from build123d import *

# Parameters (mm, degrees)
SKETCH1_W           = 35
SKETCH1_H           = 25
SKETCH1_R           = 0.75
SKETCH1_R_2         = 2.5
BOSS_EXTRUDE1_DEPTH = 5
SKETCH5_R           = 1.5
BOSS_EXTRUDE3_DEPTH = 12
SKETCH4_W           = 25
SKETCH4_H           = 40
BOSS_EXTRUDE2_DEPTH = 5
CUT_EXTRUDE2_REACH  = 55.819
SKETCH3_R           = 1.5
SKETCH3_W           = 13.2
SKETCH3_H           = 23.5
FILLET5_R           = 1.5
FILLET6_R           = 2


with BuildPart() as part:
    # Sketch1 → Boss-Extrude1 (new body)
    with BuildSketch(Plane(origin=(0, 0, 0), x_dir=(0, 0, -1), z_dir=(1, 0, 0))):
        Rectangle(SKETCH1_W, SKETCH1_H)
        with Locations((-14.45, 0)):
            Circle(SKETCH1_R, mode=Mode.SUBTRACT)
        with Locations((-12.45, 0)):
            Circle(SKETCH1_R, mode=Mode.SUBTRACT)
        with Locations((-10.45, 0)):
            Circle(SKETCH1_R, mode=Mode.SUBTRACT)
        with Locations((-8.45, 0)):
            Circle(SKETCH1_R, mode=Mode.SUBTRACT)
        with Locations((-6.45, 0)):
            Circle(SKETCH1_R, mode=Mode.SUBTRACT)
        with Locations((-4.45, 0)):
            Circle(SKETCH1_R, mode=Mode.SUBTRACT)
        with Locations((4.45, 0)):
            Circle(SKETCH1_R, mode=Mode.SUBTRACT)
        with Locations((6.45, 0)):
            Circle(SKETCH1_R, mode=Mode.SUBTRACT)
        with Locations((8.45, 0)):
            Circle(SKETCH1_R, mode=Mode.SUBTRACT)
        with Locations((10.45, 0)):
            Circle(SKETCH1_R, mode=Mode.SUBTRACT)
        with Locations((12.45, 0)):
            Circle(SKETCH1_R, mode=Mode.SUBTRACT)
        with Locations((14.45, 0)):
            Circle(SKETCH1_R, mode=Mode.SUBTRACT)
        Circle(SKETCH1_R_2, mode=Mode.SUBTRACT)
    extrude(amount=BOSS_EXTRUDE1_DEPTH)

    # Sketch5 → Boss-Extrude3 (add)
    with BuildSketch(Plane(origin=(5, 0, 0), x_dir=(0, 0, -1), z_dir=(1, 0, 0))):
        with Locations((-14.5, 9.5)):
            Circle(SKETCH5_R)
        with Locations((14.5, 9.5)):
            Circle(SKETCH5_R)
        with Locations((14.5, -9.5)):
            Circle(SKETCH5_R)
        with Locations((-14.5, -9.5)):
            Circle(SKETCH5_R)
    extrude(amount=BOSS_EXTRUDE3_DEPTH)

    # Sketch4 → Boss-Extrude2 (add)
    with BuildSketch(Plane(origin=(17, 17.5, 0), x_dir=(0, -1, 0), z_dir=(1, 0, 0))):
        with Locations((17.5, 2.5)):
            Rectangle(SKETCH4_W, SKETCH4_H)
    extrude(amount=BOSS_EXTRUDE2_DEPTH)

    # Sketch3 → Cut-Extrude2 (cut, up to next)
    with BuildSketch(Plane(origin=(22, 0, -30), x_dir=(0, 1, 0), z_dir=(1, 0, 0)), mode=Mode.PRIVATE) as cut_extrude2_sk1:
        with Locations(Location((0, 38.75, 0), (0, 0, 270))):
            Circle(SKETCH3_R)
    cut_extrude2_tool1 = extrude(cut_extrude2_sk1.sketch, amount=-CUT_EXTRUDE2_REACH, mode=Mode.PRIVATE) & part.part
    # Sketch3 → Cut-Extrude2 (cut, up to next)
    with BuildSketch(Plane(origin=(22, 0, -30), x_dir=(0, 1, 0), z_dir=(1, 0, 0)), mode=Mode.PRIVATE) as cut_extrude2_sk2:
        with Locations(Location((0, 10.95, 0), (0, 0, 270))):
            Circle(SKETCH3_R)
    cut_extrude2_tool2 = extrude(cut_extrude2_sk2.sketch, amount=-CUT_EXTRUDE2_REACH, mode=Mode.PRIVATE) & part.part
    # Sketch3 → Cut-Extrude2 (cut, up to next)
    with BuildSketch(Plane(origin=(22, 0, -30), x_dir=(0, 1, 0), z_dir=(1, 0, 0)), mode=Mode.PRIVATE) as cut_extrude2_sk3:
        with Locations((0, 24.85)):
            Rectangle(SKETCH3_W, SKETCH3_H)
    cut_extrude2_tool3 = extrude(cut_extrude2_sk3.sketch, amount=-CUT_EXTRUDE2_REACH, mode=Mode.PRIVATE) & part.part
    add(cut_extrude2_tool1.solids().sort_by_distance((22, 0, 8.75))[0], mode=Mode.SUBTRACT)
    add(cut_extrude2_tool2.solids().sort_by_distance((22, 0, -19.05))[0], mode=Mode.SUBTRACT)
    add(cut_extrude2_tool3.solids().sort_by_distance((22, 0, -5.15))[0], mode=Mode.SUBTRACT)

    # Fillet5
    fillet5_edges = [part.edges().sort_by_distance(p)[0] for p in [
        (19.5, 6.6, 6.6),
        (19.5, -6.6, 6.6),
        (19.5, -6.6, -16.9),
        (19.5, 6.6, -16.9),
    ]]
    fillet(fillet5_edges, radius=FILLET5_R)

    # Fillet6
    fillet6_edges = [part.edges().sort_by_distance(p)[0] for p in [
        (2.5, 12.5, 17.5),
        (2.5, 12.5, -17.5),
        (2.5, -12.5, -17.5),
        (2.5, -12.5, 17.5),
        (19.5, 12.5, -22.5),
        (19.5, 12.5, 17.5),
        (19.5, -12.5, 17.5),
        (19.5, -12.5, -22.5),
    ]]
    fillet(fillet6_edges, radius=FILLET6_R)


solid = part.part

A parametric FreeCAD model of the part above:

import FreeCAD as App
import Part
import Sketcher
from FreeCAD import Vector
Q = App.Units.Quantity


def edges_at(feature, points):
    """Names of the edges that pass closest to the given points."""
    edges = feature.Shape.Edges
    near = lambda p: min(range(len(edges)), key=lambda i: edges[i].distToShape(Part.Vertex(*p))[0])
    return sorted({f"Edge{near(p) + 1}" for p in points})

doc = App.newDocument("Part")
body = doc.addObject("PartDesign::Body", "Body")

sketch1 = body.newObject("Sketcher::SketchObject", "Sketch")
sketch1.AttachmentSupport = (doc.getObject("YZ_Plane"), [""])
sketch1.MapMode = "FlatFace"
sketch1.addGeometry([
    Part.LineSegment(Vector(12.5, 17.5, 0), Vector(-12.5, 17.5, 0)),
    Part.LineSegment(Vector(-12.5, 17.5, 0), Vector(-12.5, -17.5, 0)),
    Part.LineSegment(Vector(-12.5, -17.5, 0), Vector(12.5, -17.5, 0)),
    Part.LineSegment(Vector(12.5, -17.5, 0), Vector(12.5, 17.5, 0)),
    Part.Circle(Vector(0, 14.4, 0), Vector(0, 0, 1), 0.8),
    Part.Circle(Vector(0, 12.4, 0), Vector(0, 0, 1), 0.8),
    Part.Circle(Vector(0, 10.4, 0), Vector(0, 0, 1), 0.8),
    Part.Circle(Vector(0, 8.4, 0), Vector(0, 0, 1), 0.8),
    Part.Circle(Vector(0, 6.5, 0), Vector(0, 0, 1), 0.8),
    Part.Circle(Vector(0, 4.5, 0), Vector(0, 0, 1), 0.8),
    Part.Circle(Vector(0, 0, 0), Vector(0, 0, 1), 2.5),
    Part.Circle(Vector(0, -4.5, 0), Vector(0, 0, 1), 0.8),
    Part.Circle(Vector(0, -6.5, 0), Vector(0, 0, 1), 0.8),
    Part.Circle(Vector(0, -8.4, 0), Vector(0, 0, 1), 0.8),
    Part.Circle(Vector(0, -10.4, 0), Vector(0, 0, 1), 0.8),
    Part.Circle(Vector(0, -12.4, 0), Vector(0, 0, 1), 0.8),
    Part.Circle(Vector(0, -14.4, 0), Vector(0, 0, 1), 0.8),
], False)
sketch1.addConstraint([
    Sketcher.Constraint("Coincident", 0, 2, 1, 1),
    Sketcher.Constraint("Coincident", 1, 2, 2, 1),
    Sketcher.Constraint("Coincident", 2, 2, 3, 1),
    Sketcher.Constraint("Coincident", 3, 2, 0, 1),
    Sketcher.Constraint("Horizontal", 0),
    Sketcher.Constraint("Vertical", 1),
    Sketcher.Constraint("Horizontal", 2),
    Sketcher.Constraint("Vertical", 3),
    Sketcher.Constraint("Coincident", 10, 3, -1, 1),
    Sketcher.Constraint("Equal", 4, 5),
    Sketcher.Constraint("Equal", 5, 6),
    Sketcher.Constraint("Equal", 6, 7),
    Sketcher.Constraint("Equal", 7, 8),
    Sketcher.Constraint("Equal", 8, 9),
    Sketcher.Constraint("Equal", 9, 11),
    Sketcher.Constraint("Equal", 11, 12),
    Sketcher.Constraint("Equal", 12, 13),
    Sketcher.Constraint("Equal", 13, 14),
    Sketcher.Constraint("Equal", 14, 15),
    Sketcher.Constraint("Equal", 15, 16),
    Sketcher.Constraint("Symmetric", 9, 3, 11, 3, -1, 1),
    Sketcher.Constraint("Symmetric", 8, 3, 12, 3, -1, 1),
    Sketcher.Constraint("Symmetric", 7, 3, 13, 3, -1, 1),
    Sketcher.Constraint("Symmetric", 6, 3, 14, 3, -1, 1),
    Sketcher.Constraint("Symmetric", 5, 3, 15, 3, -1, 1),
    Sketcher.Constraint("Symmetric", 4, 3, 16, 3, -1, 1),
    Sketcher.Constraint("Symmetric", 0, 2, 2, 2, -1, 1),
    Sketcher.Constraint("PointOnObject", 4, 3, -2),
    Sketcher.Constraint("PointOnObject", 5, 3, -2),
    Sketcher.Constraint("PointOnObject", 6, 3, -2),
    Sketcher.Constraint("PointOnObject", 7, 3, -2),
    Sketcher.Constraint("PointOnObject", 8, 3, -2),
    Sketcher.Constraint("PointOnObject", 9, 3, -2),
    Sketcher.Constraint("Diameter", 10, Q("5 mm")),
    Sketcher.Constraint("Diameter", 4, Q("1.5 mm")),
    Sketcher.Constraint("DistanceX", 0, 2, 0, 1, Q("25 mm")),
    Sketcher.Constraint("DistanceY", 1, 2, 1, 1, Q("35 mm")),
    Sketcher.Constraint("DistanceY", 5, 3, 4, 3, Q("2 mm")),
    Sketcher.Constraint("DistanceY", 6, 3, 5, 3, Q("2 mm")),
    Sketcher.Constraint("DistanceY", 7, 3, 6, 3, Q("2 mm")),
    Sketcher.Constraint("DistanceY", 8, 3, 7, 3, Q("2 mm")),
    Sketcher.Constraint("DistanceY", 9, 3, 8, 3, Q("2 mm")),
    Sketcher.Constraint("DistanceY", 11, 3, 9, 3, Q("8.9 mm")),
])
pad1 = body.newObject("PartDesign::Pad", "Pad")
pad1.Profile = sketch1
pad1.Length = 5

sketch2 = body.newObject("Sketcher::SketchObject", "Sketch001")
sketch2.AttachmentSupport = (doc.getObject("YZ_Plane"), [""])
sketch2.MapMode = "FlatFace"
sketch2.AttachmentOffset = App.Placement(Vector(0, 0, 5), App.Rotation())
sketch2.addGeometry([
    Part.Circle(Vector(9.5, 14.5, 0), Vector(0, 0, 1), 1.5),
    Part.Circle(Vector(9.5, -14.5, 0), Vector(0, 0, 1), 1.5),
    Part.Circle(Vector(-9.5, -14.5, 0), Vector(0, 0, 1), 1.5),
    Part.Circle(Vector(-9.5, 14.5, 0), Vector(0, 0, 1), 1.5),
], False)
sketch2.addConstraint([
    Sketcher.Constraint("Equal", 0, 1),
    Sketcher.Constraint("Equal", 1, 2),
    Sketcher.Constraint("Equal", 2, 3),
    Sketcher.Constraint("Symmetric", 0, 3, 2, 3, -1, 1),
    Sketcher.Constraint("Symmetric", 1, 3, 3, 3, -1, 1),
    Sketcher.Constraint("Symmetric", 1, 3, 2, 3, -2),
    Sketcher.Constraint("Diameter", 0, Q("3 mm")),
    Sketcher.Constraint("DistanceY", 1, 3, 0, 3, Q("29 mm")),
    Sketcher.Constraint("DistanceX", 2, 3, 1, 3, Q("19 mm")),
])
pad2 = body.newObject("PartDesign::Pad", "Pad001")
pad2.Profile = sketch2
pad2.Length = 12

sketch3 = body.newObject("Sketcher::SketchObject", "Sketch002")
sketch3.AttachmentSupport = (doc.getObject("YZ_Plane"), [""])
sketch3.MapMode = "FlatFace"
sketch3.AttachmentOffset = App.Placement(Vector(0, 0, 17), App.Rotation())
sketch3.addGeometry([
    Part.LineSegment(Vector(12, -22, 0), Vector(12, 18, 0)),
    Part.LineSegment(Vector(12, 18, 0), Vector(-12, 18, 0)),
    Part.LineSegment(Vector(-12, 18, 0), Vector(-12, -22, 0)),
    Part.LineSegment(Vector(-12, -22, 0), Vector(12, -22, 0)),
], False)
sketch3.addConstraint([
    Sketcher.Constraint("Coincident", 0, 2, 1, 1),
    Sketcher.Constraint("Coincident", 1, 2, 2, 1),
    Sketcher.Constraint("Coincident", 2, 2, 3, 1),
    Sketcher.Constraint("Coincident", 3, 2, 0, 1),
    Sketcher.Constraint("Vertical", 0),
    Sketcher.Constraint("Horizontal", 1),
    Sketcher.Constraint("Vertical", 2),
    Sketcher.Constraint("Horizontal", 3),
    Sketcher.Constraint("DistanceX", 1, 2, 1, 1, Q("25 mm")),
    Sketcher.Constraint("DistanceY", 0, 1, 0, 2, Q("40 mm")),
    Sketcher.Constraint("DistanceX", -1, 1, 0, 2, Q("12.5 mm")),
    Sketcher.Constraint("DistanceY", -1, 1, 0, 2, Q("17.5 mm")),
])
pad3 = body.newObject("PartDesign::Pad", "Pad002")
pad3.Profile = sketch3
pad3.Length = 5

sketch4 = body.newObject("Sketcher::SketchObject", "Sketch003")
sketch4.AttachmentSupport = (doc.getObject("YZ_Plane"), [""])
sketch4.MapMode = "FlatFace"
sketch4.AttachmentOffset = App.Placement(Vector(0, 0, 22), App.Rotation())
sketch4.addGeometry(Part.Circle(Vector(0, 8.8, 0), Vector(0, 0, 1), 1.5), False)
sketch4.addConstraint([
    Sketcher.Constraint("PointOnObject", 0, 3, -2),
    Sketcher.Constraint("Diameter", 0, Q("3 mm")),
    Sketcher.Constraint("DistanceY", -1, 1, 0, 3, Q("8.75 mm")),
])
pocket1 = body.newObject("PartDesign::Pocket", "Pocket")
pocket1.Profile = sketch4
pocket1.Type = "UpToFirst"

sketch5 = body.newObject("Sketcher::SketchObject", "Sketch004")
sketch5.AttachmentSupport = (doc.getObject("YZ_Plane"), [""])
sketch5.MapMode = "FlatFace"
sketch5.AttachmentOffset = App.Placement(Vector(0, 0, 22), App.Rotation())
sketch5.addGeometry(Part.Circle(Vector(0, -19.1, 0), Vector(0, 0, 1), 1.5), False)
sketch5.addConstraint([
    Sketcher.Constraint("PointOnObject", 0, 3, -2),
    Sketcher.Constraint("Diameter", 0, Q("3 mm")),
    Sketcher.Constraint("DistanceY", 0, 3, -1, 1, Q("19.05 mm")),
])
pocket2 = body.newObject("PartDesign::Pocket", "Pocket001")
pocket2.Profile = sketch5
pocket2.Type = "UpToFirst"

sketch6 = body.newObject("Sketcher::SketchObject", "Sketch005")
sketch6.AttachmentSupport = (doc.getObject("YZ_Plane"), [""])
sketch6.MapMode = "FlatFace"
sketch6.AttachmentOffset = App.Placement(Vector(0, 0, 22), App.Rotation())
sketch6.addGeometry([
    Part.LineSegment(Vector(-7, 7, 0), Vector(-7, -17, 0)),
    Part.LineSegment(Vector(-7, -17, 0), Vector(7, -17, 0)),
    Part.LineSegment(Vector(7, -17, 0), Vector(7, 7, 0)),
    Part.LineSegment(Vector(7, 7, 0), Vector(-7, 7, 0)),
], False)
sketch6.addConstraint([
    Sketcher.Constraint("Coincident", 0, 2, 1, 1),
    Sketcher.Constraint("Coincident", 1, 2, 2, 1),
    Sketcher.Constraint("Coincident", 2, 2, 3, 1),
    Sketcher.Constraint("Coincident", 3, 2, 0, 1),
    Sketcher.Constraint("Vertical", 0),
    Sketcher.Constraint("Horizontal", 1),
    Sketcher.Constraint("Vertical", 2),
    Sketcher.Constraint("Horizontal", 3),
    Sketcher.Constraint("DistanceX", 1, 1, 1, 2, Q("13.2 mm")),
    Sketcher.Constraint("DistanceY", 0, 2, 0, 1, Q("23.5 mm")),
    Sketcher.Constraint("DistanceX", 0, 2, -1, 1, Q("6.6 mm")),
    Sketcher.Constraint("DistanceY", 0, 2, -1, 1, Q("16.9 mm")),
])
pocket3 = body.newObject("PartDesign::Pocket", "Pocket002")
pocket3.Profile = sketch6
pocket3.Type = "UpToFirst"
doc.recompute()

fillet = body.newObject("PartDesign::Fillet", "Fillet")
fillet.Base = (pocket3, edges_at(pocket3, [
    (19.5, 6.6, 6.6),
    (19.5, -6.6, 6.6),
    (19.5, -6.6, -16.9),
    (19.5, 6.6, -16.9),
]))
fillet.Radius = 1.5
doc.recompute()

fillet2 = body.newObject("PartDesign::Fillet", "Fillet001")
fillet2.Base = (fillet, edges_at(fillet, [
    (2.5, 12.5, 17.5),
    (2.5, 12.5, -17.5),
    (2.5, -12.5, -17.5),
    (2.5, -12.5, 17.5),
    (19.5, 12.5, -22.5),
    (19.5, 12.5, 17.5),
    (19.5, -12.5, 17.5),
    (19.5, -12.5, -22.5),
]))
fillet2.Radius = 2

doc.recompute()
